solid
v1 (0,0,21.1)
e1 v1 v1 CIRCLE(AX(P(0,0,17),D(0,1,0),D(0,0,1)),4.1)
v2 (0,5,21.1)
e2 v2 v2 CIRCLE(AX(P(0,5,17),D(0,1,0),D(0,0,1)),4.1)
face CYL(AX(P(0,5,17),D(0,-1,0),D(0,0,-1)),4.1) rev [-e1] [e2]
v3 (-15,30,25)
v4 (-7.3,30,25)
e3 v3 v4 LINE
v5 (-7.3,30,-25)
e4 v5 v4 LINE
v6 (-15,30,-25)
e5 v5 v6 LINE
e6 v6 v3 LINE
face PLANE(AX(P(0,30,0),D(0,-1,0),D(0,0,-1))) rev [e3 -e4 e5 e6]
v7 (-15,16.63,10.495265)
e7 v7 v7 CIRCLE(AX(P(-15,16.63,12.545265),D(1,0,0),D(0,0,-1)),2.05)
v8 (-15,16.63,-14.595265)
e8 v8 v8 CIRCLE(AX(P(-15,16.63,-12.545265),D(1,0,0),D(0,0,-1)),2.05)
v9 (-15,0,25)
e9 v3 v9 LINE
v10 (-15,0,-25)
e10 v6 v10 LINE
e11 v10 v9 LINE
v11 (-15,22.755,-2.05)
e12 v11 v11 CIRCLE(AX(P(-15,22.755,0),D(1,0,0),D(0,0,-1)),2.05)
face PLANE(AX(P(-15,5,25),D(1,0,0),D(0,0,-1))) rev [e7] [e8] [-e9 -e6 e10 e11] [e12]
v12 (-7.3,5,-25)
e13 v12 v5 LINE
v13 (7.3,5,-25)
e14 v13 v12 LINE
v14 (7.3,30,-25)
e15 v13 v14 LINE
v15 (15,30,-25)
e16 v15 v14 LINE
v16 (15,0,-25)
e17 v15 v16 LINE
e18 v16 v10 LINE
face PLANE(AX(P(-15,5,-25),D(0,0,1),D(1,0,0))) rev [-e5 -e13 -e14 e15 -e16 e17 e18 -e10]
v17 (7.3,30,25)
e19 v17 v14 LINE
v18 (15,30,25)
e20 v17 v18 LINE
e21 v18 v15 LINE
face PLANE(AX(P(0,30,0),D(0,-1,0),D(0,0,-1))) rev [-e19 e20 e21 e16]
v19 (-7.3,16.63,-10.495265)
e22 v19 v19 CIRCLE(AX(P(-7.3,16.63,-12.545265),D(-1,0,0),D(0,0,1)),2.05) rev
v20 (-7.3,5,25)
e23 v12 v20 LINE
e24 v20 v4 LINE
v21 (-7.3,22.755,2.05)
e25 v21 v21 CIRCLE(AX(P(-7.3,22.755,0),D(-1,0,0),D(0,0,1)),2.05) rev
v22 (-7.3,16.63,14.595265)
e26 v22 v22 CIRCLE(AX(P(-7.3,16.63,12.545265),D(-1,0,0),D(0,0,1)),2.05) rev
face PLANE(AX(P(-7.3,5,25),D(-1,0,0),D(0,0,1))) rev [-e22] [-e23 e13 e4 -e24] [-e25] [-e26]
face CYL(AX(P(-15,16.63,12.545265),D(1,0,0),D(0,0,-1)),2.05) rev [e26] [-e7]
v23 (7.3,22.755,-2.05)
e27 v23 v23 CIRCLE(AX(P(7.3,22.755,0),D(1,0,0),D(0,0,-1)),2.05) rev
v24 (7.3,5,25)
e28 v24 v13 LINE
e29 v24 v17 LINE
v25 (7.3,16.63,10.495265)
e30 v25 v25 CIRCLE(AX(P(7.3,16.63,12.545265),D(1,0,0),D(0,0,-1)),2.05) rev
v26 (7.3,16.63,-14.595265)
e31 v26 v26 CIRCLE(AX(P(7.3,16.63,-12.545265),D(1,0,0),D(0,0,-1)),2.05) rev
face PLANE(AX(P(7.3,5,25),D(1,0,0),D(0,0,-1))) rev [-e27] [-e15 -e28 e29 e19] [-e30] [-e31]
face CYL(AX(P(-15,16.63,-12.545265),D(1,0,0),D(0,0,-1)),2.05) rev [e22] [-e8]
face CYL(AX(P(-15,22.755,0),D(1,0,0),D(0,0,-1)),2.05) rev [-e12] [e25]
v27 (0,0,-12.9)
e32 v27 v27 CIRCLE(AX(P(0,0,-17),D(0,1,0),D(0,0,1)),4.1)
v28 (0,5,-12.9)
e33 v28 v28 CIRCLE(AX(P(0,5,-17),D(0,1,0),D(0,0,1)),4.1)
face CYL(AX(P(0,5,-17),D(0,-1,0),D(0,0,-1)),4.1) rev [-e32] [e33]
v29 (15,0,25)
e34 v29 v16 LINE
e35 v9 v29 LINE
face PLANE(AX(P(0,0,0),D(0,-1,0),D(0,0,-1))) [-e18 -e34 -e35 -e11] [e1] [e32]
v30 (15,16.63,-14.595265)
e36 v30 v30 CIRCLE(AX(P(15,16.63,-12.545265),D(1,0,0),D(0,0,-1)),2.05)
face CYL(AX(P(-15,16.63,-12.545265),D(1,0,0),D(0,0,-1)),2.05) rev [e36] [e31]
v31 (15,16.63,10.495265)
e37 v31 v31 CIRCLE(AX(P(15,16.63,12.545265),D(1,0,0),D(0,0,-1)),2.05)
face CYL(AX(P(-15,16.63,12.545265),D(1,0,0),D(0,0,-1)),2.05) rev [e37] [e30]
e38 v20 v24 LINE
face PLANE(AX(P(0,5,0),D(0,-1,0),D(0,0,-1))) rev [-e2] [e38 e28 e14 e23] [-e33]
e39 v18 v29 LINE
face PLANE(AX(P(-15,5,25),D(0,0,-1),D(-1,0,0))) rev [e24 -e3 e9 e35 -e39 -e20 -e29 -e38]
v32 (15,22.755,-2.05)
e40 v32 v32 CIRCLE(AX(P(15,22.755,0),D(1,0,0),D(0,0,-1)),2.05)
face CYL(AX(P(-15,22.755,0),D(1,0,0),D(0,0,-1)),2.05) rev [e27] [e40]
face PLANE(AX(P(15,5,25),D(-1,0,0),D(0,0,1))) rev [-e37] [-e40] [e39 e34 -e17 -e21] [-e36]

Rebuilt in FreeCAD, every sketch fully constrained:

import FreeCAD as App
import Part
import Sketcher

V = App.Vector
Q = App.Units.Quantity

doc = App.newDocument("Part")
body = doc.addObject("PartDesign::Body", "Body")

# Sketch on XZ plane
sketch1 = doc.addObject("Sketcher::SketchObject", "Sketch")
body.addObject(sketch1)
sketch1.AttachmentSupport = (doc.XZ_Plane, [""])
sketch1.MapMode = "FlatFace"
sketch1.addGeometry(Part.LineSegment(V(-15, -25, 0), V(-15, 25, 0)), False)
sketch1.addGeometry(Part.LineSegment(V(-15, 25, 0), V(15, 25, 0)), False)
sketch1.addGeometry(Part.LineSegment(V(15, 25, 0), V(15, -25, 0)), False)
sketch1.addGeometry(Part.LineSegment(V(15, -25, 0), V(-15, -25, 0)), False)
sketch1.addGeometry(Part.Circle(V(0, 17, 0), V(0, 0, 1), 4.1), False)
sketch1.addGeometry(Part.Circle(V(0, -17, 0), V(0, 0, 1), 4.1), False)
sketch1.addConstraint(Sketcher.Constraint("Coincident", 0, 2, 1, 1))
sketch1.addConstraint(Sketcher.Constraint("Coincident", 1, 2, 2, 1))
sketch1.addConstraint(Sketcher.Constraint("Coincident", 2, 2, 3, 1))
sketch1.addConstraint(Sketcher.Constraint("Coincident", 3, 2, 0, 1))
sketch1.addConstraint(Sketcher.Constraint("Vertical", 0))
sketch1.addConstraint(Sketcher.Constraint("Horizontal", 1))
sketch1.addConstraint(Sketcher.Constraint("Vertical", 2))
sketch1.addConstraint(Sketcher.Constraint("Horizontal", 3))
sketch1.addConstraint(Sketcher.Constraint("Equal", 4, 5))
sketch1.addConstraint(Sketcher.Constraint("Symmetric", 4, 3, 5, 3, -1, 1))
sketch1.addConstraint(Sketcher.Constraint("Symmetric", 0, 2, 2, 2, -1, 1))
sketch1.addConstraint(Sketcher.Constraint("PointOnObject", 4, 3, -2))
sketch1.addConstraint(Sketcher.Constraint("Diameter", 4, Q("8.2 mm")))
sketch1.addConstraint(Sketcher.Constraint("DistanceX", 1, 1, 1, 2, Q("30 mm")))
sketch1.addConstraint(Sketcher.Constraint("DistanceY", 0, 1, 0, 2, Q("50 mm")))
sketch1.addConstraint(Sketcher.Constraint("DistanceY", -1, 1, 4, 3, Q("17 mm")))
pad1 = doc.addObject("PartDesign::Pad", "Pad")
body.addObject(pad1)
pad1.Profile = sketch1
pad1.Length = 5
pad1.Reversed = True

# Sketch on XZ plane
sketch2 = doc.addObject("Sketcher::SketchObject", "Sketch001")
body.addObject(sketch2)
sketch2.AttachmentSupport = (doc.XZ_Plane, [""])
sketch2.MapMode = "FlatFace"
sketch2.AttachmentOffset = App.Placement(V(0, 0, -5), App.Rotation())
sketch2.addGeometry(Part.LineSegment(V(-7, 10, 0), V(7, 10, 0)), False)
sketch2.addGeometry(Part.LineSegment(V(7, 10, 0), V(7, 25, 0)), False)
sketch2.addGeometry(Part.LineSegment(V(7, 25, 0), V(15, 25, 0)), False)
sketch2.addGeometry(Part.LineSegment(V(15, 25, 0), V(15, -25, 0)), False)
sketch2.addGeometry(Part.LineSegment(V(15, -25, 0), V(7, -25, 0)), False)
sketch2.addGeometry(Part.LineSegment(V(7, -25, 0), V(7, -10, 0)), False)
sketch2.addGeometry(Part.LineSegment(V(7, -10, 0), V(-7, -10, 0)), False)
sketch2.addGeometry(Part.LineSegment(V(-7, -10, 0), V(-7, -25, 0)), False)
sketch2.addGeometry(Part.LineSegment(V(-7, -25, 0), V(-15, -25, 0)), False)
sketch2.addGeometry(Part.LineSegment(V(-15, -25, 0), V(-15, 25, 0)), False)
sketch2.addGeometry(Part.LineSegment(V(-15, 25, 0), V(-7, 25, 0)), False)
sketch2.addGeometry(Part.LineSegment(V(-7, 25, 0), V(-7, 10, 0)), False)
sketch2.addConstraint(Sketcher.Constraint("Coincident", 0, 2, 1, 1))
sketch2.addConstraint(Sketcher.Constraint("Coincident", 1, 2, 2, 1))
sketch2.addConstraint(Sketcher.Constraint("Coincident", 2, 2, 3, 1))
sketch2.addConstraint(Sketcher.Constraint("Coincident", 3, 2, 4, 1))
sketch2.addConstraint(Sketcher.Constraint("Coincident", 4, 2, 5, 1))
sketch2.addConstraint(Sketcher.Constraint("Coincident", 5, 2, 6, 1))
sketch2.addConstraint(Sketcher.Constraint("Coincident", 6, 2, 7, 1))
sketch2.addConstraint(Sketcher.Constraint("Coincident", 7, 2, 8, 1))
sketch2.addConstraint(Sketcher.Constraint("Coincident", 8, 2, 9, 1))
sketch2.addConstraint(Sketcher.Constraint("Coincident", 9, 2, 10, 1))
sketch2.addConstraint(Sketcher.Constraint("Coincident", 10, 2, 11, 1))
sketch2.addConstraint(Sketcher.Constraint("Coincident", 11, 2, 0, 1))
sketch2.addConstraint(Sketcher.Constraint("Horizontal", 0))
sketch2.addConstraint(Sketcher.Constraint("Vertical", 1))
sketch2.addConstraint(Sketcher.Constraint("Horizontal", 2))
sketch2.addConstraint(Sketcher.Constraint("Vertical", 3))
sketch2.addConstraint(Sketcher.Constraint("Horizontal", 4))
sketch2.addConstraint(Sketcher.Constraint("Vertical", 5))
sketch2.addConstraint(Sketcher.Constraint("Horizontal", 6))
sketch2.addConstraint(Sketcher.Constraint("Vertical", 7))
sketch2.addConstraint(Sketcher.Constraint("Horizontal", 8))
sketch2.addConstraint(Sketcher.Constraint("Vertical", 9))
sketch2.addConstraint(Sketcher.Constraint("Horizontal", 10))
sketch2.addConstraint(Sketcher.Constraint("Vertical", 11))
sketch2.addConstraint(Sketcher.Constraint("Symmetric", 0, 2, 6, 2, -1, 1))
sketch2.addConstraint(Sketcher.Constraint("Symmetric", 2, 2, 8, 2, -1, 1))
sketch2.addConstraint(Sketcher.Constraint("Symmetric", 4, 2, 10, 2, -1, 1))
sketch2.addConstraint(Sketcher.Constraint("Symmetric", 4, 2, 7, 2, -2))
sketch2.addConstraint(Sketcher.Constraint("DistanceY", 3, 2, 3, 1, Q("50 mm")))
sketch2.addConstraint(Sketcher.Constraint("DistanceX", 0, 1, 0, 2, Q("14.5 mm")))
sketch2.addConstraint(Sketcher.Constraint("DistanceX", -1, 1, 2, 2, Q("15 mm")))
sketch2.addConstraint(Sketcher.Constraint("DistanceY", 1, 1, 1, 2, Q("15.25 mm")))
pad2 = doc.addObject("PartDesign::Pad", "Pad001")
body.addObject(pad2)
pad2.Profile = sketch2
pad2.Length = 25
pad2.Reversed = True

# Sketch on YZ plane
sketch3 = doc.addObject("Sketcher::SketchObject", "Sketch002")
body.addObject(sketch3)
sketch3.AttachmentSupport = (doc.YZ_Plane, [""])
sketch3.MapMode = "FlatFace"
sketch3.AttachmentOffset = App.Placement(V(0, 0, 15), App.Rotation())
sketch3.addGeometry(Part.Circle(V(16.6, 12.5, 0), V(0, 0, 1), 2), False)
sketch3.addGeometry(Part.Circle(V(16.6, -12.5, 0), V(0, 0, 1), 2), False)
sketch3.addGeometry(Part.Circle(V(22.8, 0, 0), V(0, 0, 1), 2), False)
sketch3.addConstraint(Sketcher.Constraint("Equal", 0, 1))
sketch3.addConstraint(Sketcher.Constraint("Equal", 1, 2))
sketch3.addConstraint(Sketcher.Constraint("Symmetric", 0, 3, 1, 3, -1))
sketch3.addConstraint(Sketcher.Constraint("PointOnObject", 2, 3, -1))
sketch3.addConstraint(Sketcher.Constraint("Diameter", 0, Q("4.1 mm")))
sketch3.addConstraint(Sketcher.Constraint("DistanceX", -1, 1, 0, 3, Q("16.63 mm")))
sketch3.addConstraint(Sketcher.Constraint("DistanceX", -1, 1, 2, 3, Q("22.755 mm")))
sketch3.addConstraint(Sketcher.Constraint("DistanceY", 1, 3, 0, 3, Q("25.09053 mm")))
pocket1 = doc.addObject("PartDesign::Pocket", "Pocket")
body.addObject(pocket1)
pocket1.Profile = sketch3
pocket1.Type = "ThroughAll"

# Sketch on XZ plane
sketch4 = doc.addObject("Sketcher::SketchObject", "Sketch003")
body.addObject(sketch4)
sketch4.AttachmentSupport = (doc.XZ_Plane, [""])
sketch4.MapMode = "FlatFace"
sketch4.AttachmentOffset = App.Placement(V(0, 0, -30), App.Rotation())
sketch4.addGeometry(Part.LineSegment(V(-7, -25, 0), V(-7, 25, 0)), False)
sketch4.addGeometry(Part.LineSegment(V(-7, 25, 0), V(7, 25, 0)), False)
sketch4.addGeometry(Part.LineSegment(V(7, 25, 0), V(7, -25, 0)), False)
sketch4.addGeometry(Part.LineSegment(V(7, -25, 0), V(-7, -25, 0)), False)
sketch4.addConstraint(Sketcher.Constraint("Coincident", 0, 2, 1, 1))
sketch4.addConstraint(Sketcher.Constraint("Coincident", 1, 2, 2, 1))
sketch4.addConstraint(Sketcher.Constraint("Coincident", 2, 2, 3, 1))
sketch4.addConstraint(Sketcher.Constraint("Coincident", 3, 2, 0, 1))
sketch4.addConstraint(Sketcher.Constraint("Vertical", 0))
sketch4.addConstraint(Sketcher.Constraint("Horizontal", 1))
sketch4.addConstraint(Sketcher.Constraint("Vertical", 2))
sketch4.addConstraint(Sketcher.Constraint("Horizontal", 3))
sketch4.addConstraint(Sketcher.Constraint("Symmetric", 0, 2, 2, 2, -1, 1))
sketch4.addConstraint(Sketcher.Constraint("DistanceY", 0, 1, 0, 2, Q("50 mm")))
sketch4.addConstraint(Sketcher.Constraint("DistanceX", 1, 1, 1, 2, Q("14.6 mm")))
pocket2 = doc.addObject("PartDesign::Pocket", "Pocket001")
body.addObject(pocket2)
pocket2.Profile = sketch4
pocket2.Length = 25
pocket2.Reversed = True

doc.recompute()
